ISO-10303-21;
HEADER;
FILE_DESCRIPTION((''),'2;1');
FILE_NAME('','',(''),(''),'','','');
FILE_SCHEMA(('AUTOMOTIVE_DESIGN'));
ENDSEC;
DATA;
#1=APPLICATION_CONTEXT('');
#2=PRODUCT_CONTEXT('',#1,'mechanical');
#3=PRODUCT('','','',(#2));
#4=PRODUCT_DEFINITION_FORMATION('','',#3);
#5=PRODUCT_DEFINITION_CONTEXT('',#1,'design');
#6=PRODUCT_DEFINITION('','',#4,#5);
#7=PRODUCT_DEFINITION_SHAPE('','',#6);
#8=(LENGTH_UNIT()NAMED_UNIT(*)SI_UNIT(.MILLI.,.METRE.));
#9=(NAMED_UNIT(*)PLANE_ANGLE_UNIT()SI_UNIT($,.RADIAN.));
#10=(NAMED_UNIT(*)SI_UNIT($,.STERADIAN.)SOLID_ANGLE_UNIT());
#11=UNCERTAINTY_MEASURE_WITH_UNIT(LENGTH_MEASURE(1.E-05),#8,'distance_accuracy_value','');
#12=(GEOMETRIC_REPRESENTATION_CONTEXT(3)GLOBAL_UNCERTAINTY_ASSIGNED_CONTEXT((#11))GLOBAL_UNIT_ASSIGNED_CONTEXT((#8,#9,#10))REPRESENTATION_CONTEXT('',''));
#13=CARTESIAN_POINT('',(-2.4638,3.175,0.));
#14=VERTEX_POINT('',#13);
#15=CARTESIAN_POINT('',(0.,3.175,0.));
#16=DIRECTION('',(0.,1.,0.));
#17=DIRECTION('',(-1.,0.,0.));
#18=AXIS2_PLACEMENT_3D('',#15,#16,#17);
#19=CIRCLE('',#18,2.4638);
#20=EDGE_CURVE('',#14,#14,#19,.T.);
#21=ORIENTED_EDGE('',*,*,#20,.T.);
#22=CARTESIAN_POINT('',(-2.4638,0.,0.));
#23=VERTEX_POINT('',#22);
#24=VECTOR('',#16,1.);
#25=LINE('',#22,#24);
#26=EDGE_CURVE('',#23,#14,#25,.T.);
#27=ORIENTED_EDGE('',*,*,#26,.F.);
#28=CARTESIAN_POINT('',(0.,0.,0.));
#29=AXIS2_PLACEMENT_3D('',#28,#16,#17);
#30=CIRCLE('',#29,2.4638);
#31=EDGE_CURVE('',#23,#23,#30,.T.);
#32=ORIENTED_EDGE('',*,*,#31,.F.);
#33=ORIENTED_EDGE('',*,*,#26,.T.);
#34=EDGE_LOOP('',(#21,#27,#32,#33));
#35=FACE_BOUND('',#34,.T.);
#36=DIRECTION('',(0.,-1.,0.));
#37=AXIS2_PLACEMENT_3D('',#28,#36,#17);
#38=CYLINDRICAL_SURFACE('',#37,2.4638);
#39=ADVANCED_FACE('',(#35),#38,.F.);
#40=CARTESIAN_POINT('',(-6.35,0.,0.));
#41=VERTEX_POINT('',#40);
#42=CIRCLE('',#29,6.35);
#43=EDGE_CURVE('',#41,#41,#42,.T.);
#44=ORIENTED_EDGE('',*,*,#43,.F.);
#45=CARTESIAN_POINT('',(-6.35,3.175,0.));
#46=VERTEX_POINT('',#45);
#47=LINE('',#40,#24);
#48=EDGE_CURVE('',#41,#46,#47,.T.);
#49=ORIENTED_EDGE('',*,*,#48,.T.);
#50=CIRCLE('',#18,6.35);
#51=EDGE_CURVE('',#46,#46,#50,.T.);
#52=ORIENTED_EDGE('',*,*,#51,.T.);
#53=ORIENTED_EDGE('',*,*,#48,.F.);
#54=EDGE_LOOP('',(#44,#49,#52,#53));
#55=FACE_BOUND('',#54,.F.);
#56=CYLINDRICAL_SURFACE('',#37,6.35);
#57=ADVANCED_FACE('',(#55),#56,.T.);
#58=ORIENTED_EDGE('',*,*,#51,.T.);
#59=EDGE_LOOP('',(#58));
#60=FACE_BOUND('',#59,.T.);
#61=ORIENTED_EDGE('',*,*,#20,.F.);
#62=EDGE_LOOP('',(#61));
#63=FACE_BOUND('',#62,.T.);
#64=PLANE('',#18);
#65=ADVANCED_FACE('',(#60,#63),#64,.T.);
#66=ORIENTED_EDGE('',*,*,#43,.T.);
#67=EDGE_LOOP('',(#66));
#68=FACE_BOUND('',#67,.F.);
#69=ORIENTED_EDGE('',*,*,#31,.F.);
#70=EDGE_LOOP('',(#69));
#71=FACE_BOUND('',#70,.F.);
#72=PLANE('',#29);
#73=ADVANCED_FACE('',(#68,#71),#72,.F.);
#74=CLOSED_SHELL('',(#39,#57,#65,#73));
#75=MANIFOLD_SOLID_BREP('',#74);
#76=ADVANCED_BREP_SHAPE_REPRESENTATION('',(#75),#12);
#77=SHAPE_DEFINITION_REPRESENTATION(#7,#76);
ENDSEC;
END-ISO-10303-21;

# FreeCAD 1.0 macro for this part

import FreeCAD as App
import Part
import Sketcher

V = App.Vector
Q = App.Units.Quantity

doc = App.newDocument("Part")
body = doc.addObject("PartDesign::Body", "Body")

sketch1 = doc.addObject("Sketcher::SketchObject", "Sketch")
body.addObject(sketch1)
sketch1.AttachmentSupport = (doc.XZ_Plane, [""])
sketch1.MapMode = "FlatFace"
sketch1.addGeometry(Part.Circle(V(0, 0, 0), V(0, 0, 1), 6.35), False)
sketch1.addGeometry(Part.Circle(V(0, 0, 0), V(0, 0, 1), 2.4638), False)
sketch1.addConstraint(Sketcher.Constraint("Coincident", 0, 3, -1, 1))
sketch1.addConstraint(Sketcher.Constraint("Coincident", 1, 3, -1, 1))
sketch1.addConstraint(Sketcher.Constraint("Diameter", 0, Q("0.5 in")))
sketch1.addConstraint(Sketcher.Constraint("Diameter", 1, Q("0.194 in")))
pad1 = doc.addObject("PartDesign::Pad", "Pad")
body.addObject(pad1)
pad1.Profile = sketch1
pad1.Length = Q("0.125 in")
pad1.Reversed = True

doc.recompute()
